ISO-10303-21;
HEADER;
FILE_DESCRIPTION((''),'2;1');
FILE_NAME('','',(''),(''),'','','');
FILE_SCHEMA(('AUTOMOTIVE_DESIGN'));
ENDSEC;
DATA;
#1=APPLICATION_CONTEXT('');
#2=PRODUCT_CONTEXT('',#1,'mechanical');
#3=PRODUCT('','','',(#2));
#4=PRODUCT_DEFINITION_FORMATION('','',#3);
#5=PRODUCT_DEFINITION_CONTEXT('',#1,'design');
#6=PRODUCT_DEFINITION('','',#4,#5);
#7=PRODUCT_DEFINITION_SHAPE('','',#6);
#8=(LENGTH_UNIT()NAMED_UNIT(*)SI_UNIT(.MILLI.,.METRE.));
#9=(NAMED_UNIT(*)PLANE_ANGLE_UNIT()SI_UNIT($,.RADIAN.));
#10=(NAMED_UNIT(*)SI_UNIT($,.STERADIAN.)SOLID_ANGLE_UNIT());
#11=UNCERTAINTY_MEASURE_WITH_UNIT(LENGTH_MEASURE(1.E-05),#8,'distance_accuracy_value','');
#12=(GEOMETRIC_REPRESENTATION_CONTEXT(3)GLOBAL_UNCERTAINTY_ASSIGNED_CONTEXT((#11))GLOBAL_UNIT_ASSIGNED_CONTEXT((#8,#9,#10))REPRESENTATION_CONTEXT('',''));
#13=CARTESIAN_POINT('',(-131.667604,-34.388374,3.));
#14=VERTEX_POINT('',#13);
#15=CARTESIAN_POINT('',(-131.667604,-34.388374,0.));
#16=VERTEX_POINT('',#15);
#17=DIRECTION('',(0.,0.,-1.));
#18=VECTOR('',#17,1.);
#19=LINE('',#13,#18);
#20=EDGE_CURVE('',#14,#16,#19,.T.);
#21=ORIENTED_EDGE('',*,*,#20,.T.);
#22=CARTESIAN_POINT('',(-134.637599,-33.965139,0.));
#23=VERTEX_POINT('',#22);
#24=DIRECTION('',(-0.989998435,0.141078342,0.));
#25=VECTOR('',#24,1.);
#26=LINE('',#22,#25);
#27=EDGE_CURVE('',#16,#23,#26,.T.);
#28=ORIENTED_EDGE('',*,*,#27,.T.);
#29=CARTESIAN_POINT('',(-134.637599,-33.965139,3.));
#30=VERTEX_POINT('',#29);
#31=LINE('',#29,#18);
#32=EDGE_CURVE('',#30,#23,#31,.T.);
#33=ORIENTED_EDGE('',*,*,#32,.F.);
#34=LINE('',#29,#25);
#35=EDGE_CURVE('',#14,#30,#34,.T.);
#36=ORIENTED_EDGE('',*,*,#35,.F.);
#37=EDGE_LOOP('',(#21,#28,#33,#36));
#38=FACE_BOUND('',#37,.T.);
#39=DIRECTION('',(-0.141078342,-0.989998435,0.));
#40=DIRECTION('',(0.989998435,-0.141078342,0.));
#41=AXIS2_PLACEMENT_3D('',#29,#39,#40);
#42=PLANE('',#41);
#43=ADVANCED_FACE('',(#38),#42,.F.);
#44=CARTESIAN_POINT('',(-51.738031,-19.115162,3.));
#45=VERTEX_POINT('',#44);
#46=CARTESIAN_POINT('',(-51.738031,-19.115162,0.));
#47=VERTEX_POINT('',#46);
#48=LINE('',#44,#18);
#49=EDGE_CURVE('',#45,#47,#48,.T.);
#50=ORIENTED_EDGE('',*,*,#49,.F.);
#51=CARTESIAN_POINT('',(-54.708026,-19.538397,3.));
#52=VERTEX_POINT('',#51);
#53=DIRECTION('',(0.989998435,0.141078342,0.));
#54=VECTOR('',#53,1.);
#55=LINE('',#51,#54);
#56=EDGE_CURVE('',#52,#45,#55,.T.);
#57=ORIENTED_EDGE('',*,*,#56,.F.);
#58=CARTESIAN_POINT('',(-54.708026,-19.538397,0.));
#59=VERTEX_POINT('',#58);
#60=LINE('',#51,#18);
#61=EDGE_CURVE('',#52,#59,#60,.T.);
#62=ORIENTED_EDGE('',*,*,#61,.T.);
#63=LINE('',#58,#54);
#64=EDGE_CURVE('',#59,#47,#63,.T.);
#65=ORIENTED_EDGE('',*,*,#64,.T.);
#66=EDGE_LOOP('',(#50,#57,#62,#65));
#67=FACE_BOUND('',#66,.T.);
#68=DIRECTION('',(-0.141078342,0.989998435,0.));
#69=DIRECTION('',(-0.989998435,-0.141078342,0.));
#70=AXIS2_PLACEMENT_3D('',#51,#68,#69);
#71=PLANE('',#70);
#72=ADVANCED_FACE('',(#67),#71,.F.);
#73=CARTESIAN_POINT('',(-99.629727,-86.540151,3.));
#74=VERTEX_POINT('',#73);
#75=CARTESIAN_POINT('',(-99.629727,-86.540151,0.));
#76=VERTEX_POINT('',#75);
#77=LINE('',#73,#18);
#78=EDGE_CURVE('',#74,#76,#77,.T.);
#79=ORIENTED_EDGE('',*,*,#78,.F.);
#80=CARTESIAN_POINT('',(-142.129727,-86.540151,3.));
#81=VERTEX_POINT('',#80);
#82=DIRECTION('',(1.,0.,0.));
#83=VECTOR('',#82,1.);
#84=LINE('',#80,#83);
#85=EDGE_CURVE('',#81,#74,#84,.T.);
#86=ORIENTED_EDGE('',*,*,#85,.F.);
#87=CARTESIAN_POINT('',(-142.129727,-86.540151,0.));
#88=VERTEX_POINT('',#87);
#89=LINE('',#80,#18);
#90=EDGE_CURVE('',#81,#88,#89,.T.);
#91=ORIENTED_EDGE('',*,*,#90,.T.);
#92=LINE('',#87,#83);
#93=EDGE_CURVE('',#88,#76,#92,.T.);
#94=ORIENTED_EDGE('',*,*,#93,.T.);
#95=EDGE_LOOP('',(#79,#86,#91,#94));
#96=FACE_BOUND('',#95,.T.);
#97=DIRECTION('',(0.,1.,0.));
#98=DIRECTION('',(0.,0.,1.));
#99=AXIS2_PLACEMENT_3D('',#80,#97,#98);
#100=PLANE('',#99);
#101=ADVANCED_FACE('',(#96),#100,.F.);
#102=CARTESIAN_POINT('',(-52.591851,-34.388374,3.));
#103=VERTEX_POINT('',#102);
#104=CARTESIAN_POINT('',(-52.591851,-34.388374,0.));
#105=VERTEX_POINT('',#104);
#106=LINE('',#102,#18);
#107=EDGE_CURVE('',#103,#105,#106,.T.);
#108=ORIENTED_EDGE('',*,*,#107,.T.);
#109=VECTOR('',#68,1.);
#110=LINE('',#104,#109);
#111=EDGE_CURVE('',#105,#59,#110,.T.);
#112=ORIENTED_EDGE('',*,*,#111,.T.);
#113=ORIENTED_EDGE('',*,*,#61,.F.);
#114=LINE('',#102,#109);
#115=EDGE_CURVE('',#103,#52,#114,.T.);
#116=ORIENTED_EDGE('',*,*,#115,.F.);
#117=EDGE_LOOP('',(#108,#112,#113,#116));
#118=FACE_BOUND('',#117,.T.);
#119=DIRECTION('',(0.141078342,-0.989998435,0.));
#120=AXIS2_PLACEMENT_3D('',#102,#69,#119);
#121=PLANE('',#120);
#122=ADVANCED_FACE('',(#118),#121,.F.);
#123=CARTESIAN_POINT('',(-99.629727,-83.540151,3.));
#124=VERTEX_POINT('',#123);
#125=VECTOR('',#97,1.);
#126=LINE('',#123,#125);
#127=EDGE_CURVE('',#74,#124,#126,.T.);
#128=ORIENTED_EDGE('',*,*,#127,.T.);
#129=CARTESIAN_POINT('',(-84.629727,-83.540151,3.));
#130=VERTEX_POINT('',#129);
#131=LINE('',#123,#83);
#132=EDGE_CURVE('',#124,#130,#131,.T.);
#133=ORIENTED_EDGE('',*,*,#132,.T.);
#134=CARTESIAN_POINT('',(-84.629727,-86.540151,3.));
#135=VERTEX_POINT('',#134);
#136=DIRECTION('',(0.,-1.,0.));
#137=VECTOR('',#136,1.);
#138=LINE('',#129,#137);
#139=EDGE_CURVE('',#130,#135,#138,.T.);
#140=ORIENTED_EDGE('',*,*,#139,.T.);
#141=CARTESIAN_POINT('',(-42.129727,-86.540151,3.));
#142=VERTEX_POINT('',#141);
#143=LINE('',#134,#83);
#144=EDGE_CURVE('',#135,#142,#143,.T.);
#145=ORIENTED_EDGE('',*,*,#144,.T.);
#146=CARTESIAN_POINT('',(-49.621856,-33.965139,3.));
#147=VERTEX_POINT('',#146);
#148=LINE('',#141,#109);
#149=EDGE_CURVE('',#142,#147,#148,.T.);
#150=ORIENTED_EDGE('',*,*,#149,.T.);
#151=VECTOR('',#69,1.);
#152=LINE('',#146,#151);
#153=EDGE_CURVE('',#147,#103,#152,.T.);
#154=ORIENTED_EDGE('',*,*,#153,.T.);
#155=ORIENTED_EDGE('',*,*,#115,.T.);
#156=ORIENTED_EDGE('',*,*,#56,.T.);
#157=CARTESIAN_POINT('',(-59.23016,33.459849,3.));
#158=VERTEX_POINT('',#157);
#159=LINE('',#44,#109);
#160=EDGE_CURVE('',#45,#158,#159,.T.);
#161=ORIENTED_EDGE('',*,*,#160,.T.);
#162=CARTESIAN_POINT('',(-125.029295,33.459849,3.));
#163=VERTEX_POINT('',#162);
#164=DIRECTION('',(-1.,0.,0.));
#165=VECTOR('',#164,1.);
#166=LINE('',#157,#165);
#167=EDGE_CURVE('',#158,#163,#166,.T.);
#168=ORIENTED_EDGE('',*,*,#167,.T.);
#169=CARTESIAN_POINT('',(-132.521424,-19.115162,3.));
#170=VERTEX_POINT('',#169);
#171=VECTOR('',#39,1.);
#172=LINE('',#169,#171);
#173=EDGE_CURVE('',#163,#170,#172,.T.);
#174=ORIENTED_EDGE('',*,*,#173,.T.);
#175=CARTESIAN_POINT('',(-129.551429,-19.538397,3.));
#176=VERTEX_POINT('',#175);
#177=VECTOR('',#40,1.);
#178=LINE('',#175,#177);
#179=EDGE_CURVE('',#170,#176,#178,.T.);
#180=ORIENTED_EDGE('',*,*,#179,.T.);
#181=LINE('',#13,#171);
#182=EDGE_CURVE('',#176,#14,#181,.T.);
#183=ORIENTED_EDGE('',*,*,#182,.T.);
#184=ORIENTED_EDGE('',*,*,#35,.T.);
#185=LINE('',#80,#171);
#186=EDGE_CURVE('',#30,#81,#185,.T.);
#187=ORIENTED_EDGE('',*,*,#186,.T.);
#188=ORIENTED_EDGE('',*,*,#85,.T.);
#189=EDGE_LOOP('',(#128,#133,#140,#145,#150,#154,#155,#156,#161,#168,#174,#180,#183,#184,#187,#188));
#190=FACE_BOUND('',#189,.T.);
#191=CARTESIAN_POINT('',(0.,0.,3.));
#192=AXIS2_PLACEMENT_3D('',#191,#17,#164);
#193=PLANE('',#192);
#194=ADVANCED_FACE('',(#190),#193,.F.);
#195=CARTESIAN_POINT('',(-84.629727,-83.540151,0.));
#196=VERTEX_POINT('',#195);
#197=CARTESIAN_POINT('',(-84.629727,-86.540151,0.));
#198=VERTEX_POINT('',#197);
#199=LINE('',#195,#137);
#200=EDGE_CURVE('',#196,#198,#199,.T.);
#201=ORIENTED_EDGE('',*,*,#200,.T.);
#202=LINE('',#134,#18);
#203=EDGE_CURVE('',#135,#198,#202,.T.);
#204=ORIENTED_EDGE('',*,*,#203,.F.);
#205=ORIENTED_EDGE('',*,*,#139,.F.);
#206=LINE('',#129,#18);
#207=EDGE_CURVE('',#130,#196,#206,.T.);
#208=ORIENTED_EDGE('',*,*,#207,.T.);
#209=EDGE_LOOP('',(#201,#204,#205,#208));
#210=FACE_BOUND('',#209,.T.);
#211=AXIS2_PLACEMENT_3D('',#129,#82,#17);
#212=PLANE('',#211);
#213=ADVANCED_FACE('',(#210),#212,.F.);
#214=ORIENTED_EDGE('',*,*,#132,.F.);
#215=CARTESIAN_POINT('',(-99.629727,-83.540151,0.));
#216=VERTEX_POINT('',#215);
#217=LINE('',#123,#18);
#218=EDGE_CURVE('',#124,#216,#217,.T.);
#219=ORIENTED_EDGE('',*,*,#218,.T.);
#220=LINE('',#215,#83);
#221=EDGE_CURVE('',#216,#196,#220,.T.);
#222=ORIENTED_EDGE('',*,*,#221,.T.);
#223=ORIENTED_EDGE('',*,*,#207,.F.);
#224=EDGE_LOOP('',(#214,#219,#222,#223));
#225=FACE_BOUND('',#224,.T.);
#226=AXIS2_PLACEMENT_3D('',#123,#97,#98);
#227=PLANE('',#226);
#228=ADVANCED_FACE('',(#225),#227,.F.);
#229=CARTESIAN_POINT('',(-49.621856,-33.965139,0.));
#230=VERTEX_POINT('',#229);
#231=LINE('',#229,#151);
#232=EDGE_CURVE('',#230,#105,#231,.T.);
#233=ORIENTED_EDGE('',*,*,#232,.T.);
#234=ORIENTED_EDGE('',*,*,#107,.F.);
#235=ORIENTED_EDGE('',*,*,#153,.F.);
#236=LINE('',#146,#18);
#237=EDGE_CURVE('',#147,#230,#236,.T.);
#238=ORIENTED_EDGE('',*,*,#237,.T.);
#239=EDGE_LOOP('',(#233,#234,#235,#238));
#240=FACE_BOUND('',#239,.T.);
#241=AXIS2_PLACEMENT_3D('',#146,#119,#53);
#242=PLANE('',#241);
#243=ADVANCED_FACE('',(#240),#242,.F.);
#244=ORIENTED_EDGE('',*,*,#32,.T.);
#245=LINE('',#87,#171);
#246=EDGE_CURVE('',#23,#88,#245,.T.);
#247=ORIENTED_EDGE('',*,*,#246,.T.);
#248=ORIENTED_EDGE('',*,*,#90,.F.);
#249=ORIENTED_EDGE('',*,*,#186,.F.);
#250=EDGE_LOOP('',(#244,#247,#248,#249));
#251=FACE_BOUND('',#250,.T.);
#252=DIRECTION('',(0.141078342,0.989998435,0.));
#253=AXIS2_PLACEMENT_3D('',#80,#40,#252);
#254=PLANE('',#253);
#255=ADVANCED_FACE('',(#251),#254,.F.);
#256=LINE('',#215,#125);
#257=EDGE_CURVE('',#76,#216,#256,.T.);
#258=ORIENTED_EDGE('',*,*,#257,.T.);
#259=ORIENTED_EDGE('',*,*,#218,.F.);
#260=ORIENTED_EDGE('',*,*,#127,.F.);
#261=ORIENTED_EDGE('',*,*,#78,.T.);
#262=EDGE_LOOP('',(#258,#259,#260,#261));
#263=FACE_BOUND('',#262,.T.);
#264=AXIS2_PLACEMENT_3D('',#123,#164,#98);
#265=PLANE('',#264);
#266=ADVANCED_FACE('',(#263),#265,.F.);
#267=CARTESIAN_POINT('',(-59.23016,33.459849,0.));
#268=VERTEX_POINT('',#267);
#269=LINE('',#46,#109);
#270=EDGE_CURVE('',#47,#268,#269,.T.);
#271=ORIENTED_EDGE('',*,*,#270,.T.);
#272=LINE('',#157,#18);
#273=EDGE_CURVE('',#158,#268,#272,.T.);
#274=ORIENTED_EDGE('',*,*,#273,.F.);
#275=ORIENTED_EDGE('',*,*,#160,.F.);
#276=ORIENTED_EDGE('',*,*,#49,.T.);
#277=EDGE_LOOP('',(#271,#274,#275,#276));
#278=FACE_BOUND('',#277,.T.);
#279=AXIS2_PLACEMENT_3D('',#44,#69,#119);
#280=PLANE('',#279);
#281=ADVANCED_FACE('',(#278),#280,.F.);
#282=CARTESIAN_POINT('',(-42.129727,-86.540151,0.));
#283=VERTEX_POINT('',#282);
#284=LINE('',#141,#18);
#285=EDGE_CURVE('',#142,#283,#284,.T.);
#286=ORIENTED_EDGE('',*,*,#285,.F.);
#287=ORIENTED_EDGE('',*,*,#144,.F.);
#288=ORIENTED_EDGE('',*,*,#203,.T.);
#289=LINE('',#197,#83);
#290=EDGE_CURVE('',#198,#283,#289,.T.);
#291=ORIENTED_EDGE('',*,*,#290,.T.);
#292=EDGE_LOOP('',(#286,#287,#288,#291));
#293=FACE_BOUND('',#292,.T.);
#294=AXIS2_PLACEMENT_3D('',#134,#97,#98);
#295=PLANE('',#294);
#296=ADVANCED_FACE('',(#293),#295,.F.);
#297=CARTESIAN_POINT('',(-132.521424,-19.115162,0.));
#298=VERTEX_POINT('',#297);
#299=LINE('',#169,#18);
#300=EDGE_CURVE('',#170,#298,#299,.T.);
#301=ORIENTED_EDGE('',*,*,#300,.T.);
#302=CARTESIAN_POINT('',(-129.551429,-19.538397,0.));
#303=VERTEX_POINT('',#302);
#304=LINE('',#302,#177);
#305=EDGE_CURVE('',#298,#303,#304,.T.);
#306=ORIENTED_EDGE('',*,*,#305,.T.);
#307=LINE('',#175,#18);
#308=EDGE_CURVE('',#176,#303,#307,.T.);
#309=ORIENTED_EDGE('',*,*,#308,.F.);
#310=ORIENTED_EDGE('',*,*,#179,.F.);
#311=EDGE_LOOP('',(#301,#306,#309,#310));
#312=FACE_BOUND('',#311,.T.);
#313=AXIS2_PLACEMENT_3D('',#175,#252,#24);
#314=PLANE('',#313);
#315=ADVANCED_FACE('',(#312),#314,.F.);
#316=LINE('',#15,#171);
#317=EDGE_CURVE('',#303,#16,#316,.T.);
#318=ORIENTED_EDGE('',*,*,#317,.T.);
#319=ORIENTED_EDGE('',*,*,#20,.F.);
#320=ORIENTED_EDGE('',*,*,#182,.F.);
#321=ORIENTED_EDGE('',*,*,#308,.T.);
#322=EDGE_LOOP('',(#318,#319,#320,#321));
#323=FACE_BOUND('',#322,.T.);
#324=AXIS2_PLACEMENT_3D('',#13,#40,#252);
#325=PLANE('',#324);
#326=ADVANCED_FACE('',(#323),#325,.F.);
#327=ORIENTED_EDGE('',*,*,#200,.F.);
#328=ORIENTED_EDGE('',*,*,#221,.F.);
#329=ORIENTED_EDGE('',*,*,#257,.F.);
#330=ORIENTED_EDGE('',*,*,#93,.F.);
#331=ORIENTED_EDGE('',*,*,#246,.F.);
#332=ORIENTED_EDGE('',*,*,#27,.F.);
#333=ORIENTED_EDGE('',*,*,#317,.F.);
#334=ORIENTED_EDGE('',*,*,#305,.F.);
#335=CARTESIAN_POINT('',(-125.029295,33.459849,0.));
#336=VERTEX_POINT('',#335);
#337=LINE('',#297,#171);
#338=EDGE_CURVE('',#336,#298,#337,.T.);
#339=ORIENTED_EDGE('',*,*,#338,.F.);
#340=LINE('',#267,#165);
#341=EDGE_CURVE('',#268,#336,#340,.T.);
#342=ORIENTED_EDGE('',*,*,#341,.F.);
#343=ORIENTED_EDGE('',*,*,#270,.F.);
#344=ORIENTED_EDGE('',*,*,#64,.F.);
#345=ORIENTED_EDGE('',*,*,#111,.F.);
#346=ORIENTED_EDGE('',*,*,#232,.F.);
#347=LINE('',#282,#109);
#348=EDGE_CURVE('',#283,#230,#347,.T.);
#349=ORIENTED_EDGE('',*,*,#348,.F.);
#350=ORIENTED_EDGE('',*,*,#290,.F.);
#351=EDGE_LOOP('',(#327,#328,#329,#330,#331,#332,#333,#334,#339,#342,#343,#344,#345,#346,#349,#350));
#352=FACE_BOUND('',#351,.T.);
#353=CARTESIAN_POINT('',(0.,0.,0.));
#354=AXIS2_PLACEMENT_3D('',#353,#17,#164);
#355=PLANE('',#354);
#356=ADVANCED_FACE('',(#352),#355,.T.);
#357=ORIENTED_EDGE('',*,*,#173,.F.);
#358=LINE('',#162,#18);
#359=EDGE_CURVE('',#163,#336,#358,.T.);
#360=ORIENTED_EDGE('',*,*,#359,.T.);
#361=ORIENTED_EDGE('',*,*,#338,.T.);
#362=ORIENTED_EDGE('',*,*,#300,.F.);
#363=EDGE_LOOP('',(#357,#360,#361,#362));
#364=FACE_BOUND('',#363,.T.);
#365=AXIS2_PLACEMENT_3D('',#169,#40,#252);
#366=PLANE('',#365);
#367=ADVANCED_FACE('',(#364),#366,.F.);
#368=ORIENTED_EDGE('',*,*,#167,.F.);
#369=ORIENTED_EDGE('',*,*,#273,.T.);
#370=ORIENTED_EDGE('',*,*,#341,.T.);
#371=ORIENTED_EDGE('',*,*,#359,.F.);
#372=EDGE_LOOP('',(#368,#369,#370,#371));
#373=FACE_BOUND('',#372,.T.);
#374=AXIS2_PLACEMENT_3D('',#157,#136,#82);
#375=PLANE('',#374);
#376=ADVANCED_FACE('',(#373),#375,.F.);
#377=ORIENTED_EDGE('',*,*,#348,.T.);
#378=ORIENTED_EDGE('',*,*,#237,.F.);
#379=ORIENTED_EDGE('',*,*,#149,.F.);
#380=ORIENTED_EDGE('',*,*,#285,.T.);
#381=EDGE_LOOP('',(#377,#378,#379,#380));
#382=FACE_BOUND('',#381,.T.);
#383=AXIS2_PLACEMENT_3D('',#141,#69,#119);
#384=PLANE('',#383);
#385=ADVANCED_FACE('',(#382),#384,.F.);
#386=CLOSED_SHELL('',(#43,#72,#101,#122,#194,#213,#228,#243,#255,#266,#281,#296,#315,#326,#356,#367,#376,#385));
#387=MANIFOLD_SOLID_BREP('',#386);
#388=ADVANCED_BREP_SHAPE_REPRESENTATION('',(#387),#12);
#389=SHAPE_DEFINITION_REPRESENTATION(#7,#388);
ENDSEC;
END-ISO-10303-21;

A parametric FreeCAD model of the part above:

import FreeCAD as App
import Part
import Sketcher
from FreeCAD import Vector


def add_polygon(sketch, points):
    """Adds a closed chain of lines whose ends are joined by coincident constraints."""
    first, n = sketch.GeometryCount, len(points)
    for a, b in zip(points, points[1:] + points[:1]):
        sketch.addGeometry(Part.LineSegment(App.Vector(*a, 0), App.Vector(*b, 0)), False)
    for i in range(n):
        sketch.addConstraint(Sketcher.Constraint("Coincident", first + i, 2, first + (i + 1) % n, 1))

doc = App.newDocument("Part")
body = doc.addObject("PartDesign::Body", "Body")

# Sketch on XY plane
sketch1 = doc.addObject("Sketcher::SketchObject", "Sketch")
body.addObject(sketch1)
sketch1.AttachmentSupport = (doc.XY_Plane, [""])
sketch1.MapMode = "FlatFace"
add_polygon(sketch1, [(-134.6, -34), (-142.1, -86.5), (-99.6, -86.5), (-99.6, -83.5), (-84.6, -83.5), (-84.6, -86.5), (-42.1, -86.5), (-49.6, -34), (-52.6, -34.4), (-54.7, -19.5), (-51.7, -19.1), (-59.2, 33.5), (-125, 33.5), (-132.5, -19.1), (-129.6, -19.5), (-131.7, -34.4)])  # lines 0-15
sketch1.addConstraint([
    Sketcher.Constraint("Horizontal", 1),
    Sketcher.Constraint("Vertical", 2),
    Sketcher.Constraint("Horizontal", 3),
    Sketcher.Constraint("Vertical", 4),
    Sketcher.Constraint("Horizontal", 5),
    Sketcher.Constraint("Horizontal", 11),
    Sketcher.Constraint("Perpendicular", 6, 7),
    Sketcher.Constraint("Perpendicular", 7, 8),
    Sketcher.Constraint("Perpendicular", 8, 9),
    Sketcher.Constraint("Perpendicular", 9, 10),
    Sketcher.Constraint("Parallel", 0, 12),
    Sketcher.Constraint("Perpendicular", 12, 13),
    Sketcher.Constraint("Perpendicular", 13, 14),
    Sketcher.Constraint("Perpendicular", 14, 15),
    Sketcher.Constraint("Horizontal", 1, 2, 4, 2),
    Sketcher.Constraint("Horizontal", 9, 2, 12, 2),
    Sketcher.Constraint("Horizontal", 8, 2, 13, 2),
    Sketcher.Constraint("Horizontal", 7, 2, 14, 2),
    Sketcher.Constraint("Horizontal", 6, 2, 15, 2),
    Sketcher.Constraint("Equal", 1, 5),
    Sketcher.Constraint("Equal", 0, 6),
    Sketcher.Constraint("Equal", 7, 9),
    Sketcher.Constraint("Equal", 6, 10),
    Sketcher.Constraint("DistanceX", 3, 1, 3, 2, 15.0),
    Sketcher.Constraint("DistanceY", 2, 1, 2, 2, 3.0),
    Sketcher.Constraint("Distance", 7, 3.0),
    Sketcher.Constraint("Distance", 8, 15.0),
    Sketcher.Constraint("DistanceX", 1, 1, 1, 2, 42.5),
    Sketcher.Constraint("DistanceY", 3, 2, 10, 2, 117.0),
    Sketcher.Constraint("DistanceX", 15, 2, -1, 1, 134.637599),
    Sketcher.Constraint("DistanceX", 8, 2, 5, 2, 12.578299),
    Sketcher.Constraint("DistanceY", 0, 2, -1, 1, 86.540151),
])
pad1 = doc.addObject("PartDesign::Pad", "Pad")
body.addObject(pad1)
pad1.Profile = sketch1
pad1.Length = 3

doc.recompute()
